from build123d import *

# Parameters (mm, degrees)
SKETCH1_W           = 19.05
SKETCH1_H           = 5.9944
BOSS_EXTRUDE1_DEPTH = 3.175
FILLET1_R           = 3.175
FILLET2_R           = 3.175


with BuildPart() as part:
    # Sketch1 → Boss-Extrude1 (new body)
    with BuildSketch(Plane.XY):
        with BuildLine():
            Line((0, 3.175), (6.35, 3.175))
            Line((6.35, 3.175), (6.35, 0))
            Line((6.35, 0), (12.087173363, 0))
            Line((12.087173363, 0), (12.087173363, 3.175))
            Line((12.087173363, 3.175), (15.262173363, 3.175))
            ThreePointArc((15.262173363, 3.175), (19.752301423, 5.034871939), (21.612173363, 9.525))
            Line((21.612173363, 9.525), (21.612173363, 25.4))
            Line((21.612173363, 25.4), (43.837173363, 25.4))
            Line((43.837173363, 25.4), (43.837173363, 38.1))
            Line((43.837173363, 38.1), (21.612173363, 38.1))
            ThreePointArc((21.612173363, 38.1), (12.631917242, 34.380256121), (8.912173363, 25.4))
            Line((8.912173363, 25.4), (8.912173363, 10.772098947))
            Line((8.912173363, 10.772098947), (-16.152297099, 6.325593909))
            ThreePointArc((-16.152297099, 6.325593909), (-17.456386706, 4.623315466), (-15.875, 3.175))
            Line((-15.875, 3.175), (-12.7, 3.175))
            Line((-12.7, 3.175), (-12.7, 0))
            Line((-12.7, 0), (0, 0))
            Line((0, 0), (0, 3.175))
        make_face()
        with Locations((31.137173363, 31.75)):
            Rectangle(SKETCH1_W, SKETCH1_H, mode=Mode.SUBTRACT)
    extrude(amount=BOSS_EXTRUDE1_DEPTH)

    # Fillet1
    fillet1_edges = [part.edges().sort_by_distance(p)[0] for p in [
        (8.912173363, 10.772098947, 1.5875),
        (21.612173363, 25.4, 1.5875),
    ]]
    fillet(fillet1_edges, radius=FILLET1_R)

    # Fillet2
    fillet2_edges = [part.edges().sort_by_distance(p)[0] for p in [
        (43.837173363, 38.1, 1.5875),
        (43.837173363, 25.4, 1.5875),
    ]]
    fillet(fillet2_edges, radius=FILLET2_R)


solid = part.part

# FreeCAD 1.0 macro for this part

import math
import FreeCAD as App
import Part
import Sketcher
from FreeCAD import Vector
Q = App.Units.Quantity


def edges_at(feature, points):
    """Names of the edges that pass closest to the given points."""
    edges = feature.Shape.Edges
    near = lambda p: min(range(len(edges)), key=lambda i: edges[i].distToShape(Part.Vertex(*p))[0])
    return sorted({f"Edge{near(p) + 1}" for p in points})

doc = App.newDocument("Part")
body = doc.addObject("PartDesign::Body", "Body")

# Sketch on XY plane
sketch1 = doc.addObject("Sketcher::SketchObject", "Sketch")
body.addObject(sketch1)
sketch1.AttachmentSupport = (doc.XY_Plane, [""])
sketch1.MapMode = "FlatFace"
sketch1.addGeometry(Part.LineSegment(Vector(0, 3.175, 0), Vector(6.35, 3.175, 0)), False)
sketch1.addGeometry(Part.LineSegment(Vector(6.35, 3.175, 0), Vector(6.35, 0, 0)), False)
sketch1.addGeometry(Part.LineSegment(Vector(6.35, 0, 0), Vector(12.087173, 0, 0)), False)
sketch1.addGeometry(Part.LineSegment(Vector(12.087173, 0, 0), Vector(12.087173, 3.175, 0)), False)
sketch1.addGeometry(Part.LineSegment(Vector(12.087173, 3.175, 0), Vector(15.262173, 3.175, 0)), False)
sketch1.addGeometry(Part.ArcOfCircle(Part.Circle(Vector(15.262173, 9.525, 0), Vector(0, 0, 1), 6.35), math.radians(-90), math.radians(0)), False)
sketch1.addGeometry(Part.LineSegment(Vector(21.612173, 9.525, 0), Vector(21.612173, 25.4, 0)), False)
sketch1.addGeometry(Part.LineSegment(Vector(21.612173, 25.4, 0), Vector(43.837173, 25.4, 0)), False)
sketch1.addGeometry(Part.LineSegment(Vector(43.837173, 25.4, 0), Vector(43.837173, 38.1, 0)), False)
sketch1.addGeometry(Part.LineSegment(Vector(43.837173, 38.1, 0), Vector(21.612173, 38.1, 0)), False)
sketch1.addGeometry(Part.ArcOfCircle(Part.Circle(Vector(21.612173, 25.4, 0), Vector(0, 0, 1), 12.7), math.radians(90), math.radians(180)), False)
sketch1.addGeometry(Part.LineSegment(Vector(8.912173, 25.4, 0), Vector(8.912173, 10.772099, 0)), False)
sketch1.addGeometry(Part.LineSegment(Vector(8.912173, 10.772099, 0), Vector(-16.152297, 6.325594, 0)), False)
sketch1.addGeometry(Part.ArcOfCircle(Part.Circle(Vector(-15.875, 4.7625, 0), Vector(0, 0, 1), 1.5875), math.radians(100.059765), math.radians(270)), False)
sketch1.addGeometry(Part.LineSegment(Vector(-15.875, 3.175, 0), Vector(-12.7, 3.175, 0)), False)
sketch1.addGeometry(Part.LineSegment(Vector(-12.7, 3.175, 0), Vector(-12.7, 0, 0)), False)
sketch1.addGeometry(Part.LineSegment(Vector(-12.7, 0, 0), Vector(0, 0, 0)), False)
sketch1.addGeometry(Part.LineSegment(Vector(0, 0, 0), Vector(0, 3.175, 0)), False)
sketch1.addGeometry(Part.LineSegment(Vector(40.662173, 28.7528, 0), Vector(21.612173, 28.7528, 0)), False)
sketch1.addGeometry(Part.LineSegment(Vector(21.612173, 28.7528, 0), Vector(21.612173, 34.7472, 0)), False)
sketch1.addGeometry(Part.LineSegment(Vector(21.612173, 34.7472, 0), Vector(40.662173, 34.7472, 0)), False)
sketch1.addGeometry(Part.LineSegment(Vector(40.662173, 34.7472, 0), Vector(40.662173, 28.7528, 0)), False)
sketch1.addConstraint(Sketcher.Constraint("Coincident", 0, 2, 1, 1))
sketch1.addConstraint(Sketcher.Constraint("Coincident", 1, 2, 2, 1))
sketch1.addConstraint(Sketcher.Constraint("Coincident", 2, 2, 3, 1))
sketch1.addConstraint(Sketcher.Constraint("Coincident", 3, 2, 4, 1))
sketch1.addConstraint(Sketcher.Constraint("Tangent", 4, 2, 5, 1))
sketch1.addConstraint(Sketcher.Constraint("Tangent", 5, 2, 6, 1))
sketch1.addConstraint(Sketcher.Constraint("Coincident", 6, 2, 7, 1))
sketch1.addConstraint(Sketcher.Constraint("Coincident", 7, 2, 8, 1))
sketch1.addConstraint(Sketcher.Constraint("Coincident", 8, 2, 9, 1))
sketch1.addConstraint(Sketcher.Constraint("Tangent", 9, 2, 10, 1))
sketch1.addConstraint(Sketcher.Constraint("Tangent", 10, 2, 11, 1))
sketch1.addConstraint(Sketcher.Constraint("Coincident", 11, 2, 12, 1))
sketch1.addConstraint(Sketcher.Constraint("Tangent", 12, 2, 13, 1))
sketch1.addConstraint(Sketcher.Constraint("Tangent", 13, 2, 14, 1))
sketch1.addConstraint(Sketcher.Constraint("Coincident", 14, 2, 15, 1))
sketch1.addConstraint(Sketcher.Constraint("Coincident", 15, 2, 16, 1))
sketch1.addConstraint(Sketcher.Constraint("Coincident", 16, 2, 17, 1))
sketch1.addConstraint(Sketcher.Constraint("Coincident", 17, 2, 0, 1))
sketch1.addConstraint(Sketcher.Constraint("Coincident", 18, 2, 19, 1))
sketch1.addConstraint(Sketcher.Constraint("Coincident", 19, 2, 20, 1))
sketch1.addConstraint(Sketcher.Constraint("Coincident", 20, 2, 21, 1))
sketch1.addConstraint(Sketcher.Constraint("Coincident", 21, 2, 18, 1))
sketch1.addConstraint(Sketcher.Constraint("Horizontal", 0))
sketch1.addConstraint(Sketcher.Constraint("Vertical", 1))
sketch1.addConstraint(Sketcher.Constraint("Horizontal", 2))
sketch1.addConstraint(Sketcher.Constraint("Vertical", 3))
sketch1.addConstraint(Sketcher.Constraint("Horizontal", 4))
sketch1.addConstraint(Sketcher.Constraint("Vertical", 6))
sketch1.addConstraint(Sketcher.Constraint("Horizontal", 7))
sketch1.addConstraint(Sketcher.Constraint("Vertical", 8))
sketch1.addConstraint(Sketcher.Constraint("Horizontal", 9))
sketch1.addConstraint(Sketcher.Constraint("Vertical", 11))
sketch1.addConstraint(Sketcher.Constraint("Horizontal", 14))
sketch1.addConstraint(Sketcher.Constraint("Vertical", 15))
sketch1.addConstraint(Sketcher.Constraint("Horizontal", 16))
sketch1.addConstraint(Sketcher.Constraint("Vertical", 17))
sketch1.addConstraint(Sketcher.Constraint("Horizontal", 18))
sketch1.addConstraint(Sketcher.Constraint("Vertical", 19))
sketch1.addConstraint(Sketcher.Constraint("Horizontal", 20))
sketch1.addConstraint(Sketcher.Constraint("Vertical", 21))
sketch1.addConstraint(Sketcher.Constraint("Coincident", 16, 2, -1, 1))
sketch1.addConstraint(Sketcher.Constraint("Coincident", 6, 2, 10, 3))
sketch1.addConstraint(Sketcher.Constraint("PointOnObject", 1, 2, -1))
sketch1.addConstraint(Sketcher.Constraint("Horizontal", 0, 2, 3, 2))
sketch1.addConstraint(Sketcher.Constraint("Horizontal", 4, 2, 13, 2))
sketch1.addConstraint(Sketcher.Constraint("Vertical", 9, 2, 18, 2))
sketch1.addConstraint(Sketcher.Constraint("Equal", 4, 14))
sketch1.addConstraint(Sketcher.Constraint("Equal", 14, 1))
sketch1.addConstraint(Sketcher.Constraint("Equal", 16, 8))
sketch1.addConstraint(Sketcher.Constraint("Radius", 10, Q("0.5 in")))
sketch1.addConstraint(Sketcher.Constraint("Radius", 5, Q("0.25 in")))
sketch1.addConstraint(Sketcher.Constraint("DistanceY", -1, 1, 10, 3, Q("1 in")))
sketch1.addConstraint(Sketcher.Constraint("Radius", 13, Q("0.0625 in")))
sketch1.addConstraint(Sketcher.Constraint("DistanceX", 0, 1, 0, 2, Q("0.25 in")))
sketch1.addConstraint(Sketcher.Constraint("DistanceX", 18, 2, 18, 1, Q("0.75 in")))
sketch1.addConstraint(Sketcher.Constraint("DistanceX", 4, 1, 4, 2, Q("0.125 in")))
sketch1.addConstraint(Sketcher.Constraint("DistanceX", 7, 1, 7, 2, Q("0.875 in")))
sketch1.addConstraint(Sketcher.Constraint("DistanceY", 19, 1, 19, 2, Q("0.236 in")))
sketch1.addConstraint(Sketcher.Constraint("DistanceY", -1, 1, 18, 2, Q("1.132 in")))
sketch1.addConstraint(Sketcher.Constraint("DistanceY", 11, 2, 11, 1, Q("14.627901 mm")))
sketch1.addConstraint(Sketcher.Constraint("DistanceX", 2, 1, 2, 2, Q("5.737173 mm")))
pad1 = doc.addObject("PartDesign::Pad", "Pad")
body.addObject(pad1)
pad1.Profile = sketch1
pad1.Length = Q("0.125 in")
doc.recompute()

fillet = doc.addObject("PartDesign::Fillet", "Fillet")
body.addObject(fillet)
fillet.Base = (pad1, edges_at(pad1, [(8.912, 10.772, 1.587), (21.612, 25.4, 1.587)]))
fillet.Radius = Q("0.125 in")
doc.recompute()

fillet2 = doc.addObject("PartDesign::Fillet", "Fillet001")
body.addObject(fillet2)
fillet2.Base = (fillet, edges_at(fillet, [(43.837, 38.1, 1.587), (43.837, 25.4, 1.587)]))
fillet2.Radius = Q("0.125 in")

doc.recompute()
